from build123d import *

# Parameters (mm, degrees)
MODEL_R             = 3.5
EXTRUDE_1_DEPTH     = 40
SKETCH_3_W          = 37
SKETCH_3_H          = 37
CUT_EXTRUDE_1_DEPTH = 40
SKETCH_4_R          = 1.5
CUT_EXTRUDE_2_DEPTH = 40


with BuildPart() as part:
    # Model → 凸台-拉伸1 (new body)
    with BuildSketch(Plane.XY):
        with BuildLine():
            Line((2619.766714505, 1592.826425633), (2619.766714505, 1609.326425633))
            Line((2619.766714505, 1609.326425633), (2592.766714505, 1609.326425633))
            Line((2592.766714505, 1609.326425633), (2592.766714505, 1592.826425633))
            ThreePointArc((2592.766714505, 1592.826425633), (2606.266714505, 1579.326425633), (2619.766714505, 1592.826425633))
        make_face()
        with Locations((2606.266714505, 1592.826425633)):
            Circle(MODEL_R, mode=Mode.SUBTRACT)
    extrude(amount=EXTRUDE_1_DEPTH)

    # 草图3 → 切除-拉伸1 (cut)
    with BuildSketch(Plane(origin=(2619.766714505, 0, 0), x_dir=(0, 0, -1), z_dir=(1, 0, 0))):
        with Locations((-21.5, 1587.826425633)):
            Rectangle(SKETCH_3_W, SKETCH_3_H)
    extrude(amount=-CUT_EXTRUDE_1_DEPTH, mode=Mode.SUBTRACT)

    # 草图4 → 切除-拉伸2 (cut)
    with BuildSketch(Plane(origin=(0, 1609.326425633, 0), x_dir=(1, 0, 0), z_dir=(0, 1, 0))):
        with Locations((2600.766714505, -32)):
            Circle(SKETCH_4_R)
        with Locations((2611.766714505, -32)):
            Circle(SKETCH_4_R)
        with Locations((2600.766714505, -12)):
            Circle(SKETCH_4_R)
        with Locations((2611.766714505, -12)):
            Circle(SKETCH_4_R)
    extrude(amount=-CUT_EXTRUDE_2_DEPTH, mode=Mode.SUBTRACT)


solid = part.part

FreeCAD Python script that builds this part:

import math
import FreeCAD as App
import Part
import Sketcher

V = App.Vector

doc = App.newDocument("Part")
body = doc.addObject("PartDesign::Body", "Body")

# Sketch on XY plane
sketch1 = body.newObject("Sketcher::SketchObject", "Sketch")
sketch1.AttachmentSupport = (doc.getObject("XY_Plane"), [""])
sketch1.MapMode = "FlatFace"
sketch1.addGeometry([
    Part.LineSegment(V(2619.8, 1592.8, 0), V(2619.8, 1609.3, 0)),  # 0
    Part.LineSegment(V(2619.8, 1609.3, 0), V(2592.8, 1609.3, 0)),  # 1
    Part.LineSegment(V(2592.8, 1609.3, 0), V(2592.8, 1592.8, 0)),  # 2
    Part.ArcOfCircle(Part.Circle(V(2606.3, 1592.8, 0), V(0, 0, 1), 13.5), math.radians(180), math.radians(360)),  # 3
    Part.Circle(V(2606.3, 1592.8, 0), V(0, 0, 1), 3.5),  # 4
], False)
sketch1.addConstraint([
    Sketcher.Constraint("Coincident", 0, 2, 1, 1),
    Sketcher.Constraint("Coincident", 1, 2, 2, 1),
    Sketcher.Constraint("Tangent", 2, 2, 3, 1),
    Sketcher.Constraint("Tangent", 3, 2, 0, 1),
    Sketcher.Constraint("Vertical", 0),
    Sketcher.Constraint("Horizontal", 1),
    Sketcher.Constraint("Vertical", 2),
    Sketcher.Constraint("Coincident", 4, 3, 3, 3),
    Sketcher.Constraint("Diameter", 4, 7.0),
    Sketcher.Constraint("Radius", 3, 13.5),
    Sketcher.Constraint("DistanceY", 0, 1, 0, 2, 16.5),
    Sketcher.Constraint("DistanceX", -1, 1, 3, 3, 2606.266715),
    Sketcher.Constraint("DistanceY", -1, 1, 3, 3, 1592.826426),
])
pad1 = body.newObject("PartDesign::Pad", "Pad")
pad1.Profile = sketch1
pad1.Length = 40

# Sketch on YZ plane
sketch2 = body.newObject("Sketcher::SketchObject", "Sketch001")
sketch2.AttachmentSupport = (doc.getObject("YZ_Plane"), [""])
sketch2.MapMode = "FlatFace"
sketch2.AttachmentOffset = App.Placement(V(0, 0, 2619.766715), App.Rotation())
sketch2.addGeometry([
    Part.LineSegment(V(1606, 40, 0), V(1569, 40, 0)),
    Part.LineSegment(V(1569, 40, 0), V(1569, 3, 0)),
    Part.LineSegment(V(1569, 3, 0), V(1606, 3, 0)),
    Part.LineSegment(V(1606, 3, 0), V(1606, 40, 0)),
], False)
sketch2.addConstraint([
    Sketcher.Constraint("Coincident", 0, 2, 1, 1),
    Sketcher.Constraint("Coincident", 1, 2, 2, 1),
    Sketcher.Constraint("Coincident", 2, 2, 3, 1),
    Sketcher.Constraint("Coincident", 3, 2, 0, 1),
    Sketcher.Constraint("Horizontal", 0),
    Sketcher.Constraint("Vertical", 1),
    Sketcher.Constraint("Horizontal", 2),
    Sketcher.Constraint("Vertical", 3),
    Sketcher.Constraint("Equal", 2, 1),
    Sketcher.Constraint("DistanceX", 0, 2, 0, 1, 37.0),
    Sketcher.Constraint("DistanceY", -1, 1, 0, 2, 40.0),
    Sketcher.Constraint("DistanceX", -1, 1, 0, 2, 1569.326426),
])
pocket1 = body.newObject("PartDesign::Pocket", "Pocket")
pocket1.Profile = sketch2
pocket1.Length = 40

# Sketch on XZ plane
sketch3 = body.newObject("Sketcher::SketchObject", "Sketch002")
sketch3.AttachmentSupport = (doc.getObject("XZ_Plane"), [""])
sketch3.MapMode = "FlatFace"
sketch3.AttachmentOffset = App.Placement(V(0, 0, -1609.326426), App.Rotation())
sketch3.addGeometry([
    Part.Circle(V(2600.8, 32, 0), V(0, 0, 1), 1.5),
    Part.Circle(V(2611.8, 32, 0), V(0, 0, 1), 1.5),
    Part.Circle(V(2600.8, 12, 0), V(0, 0, 1), 1.5),
    Part.Circle(V(2611.8, 12, 0), V(0, 0, 1), 1.5),
], False)
sketch3.addConstraint([
    Sketcher.Constraint("Equal", 0, 1),
    Sketcher.Constraint("Equal", 1, 2),
    Sketcher.Constraint("Equal", 2, 3),
    Sketcher.Constraint("Horizontal", 0, 3, 1, 3),
    Sketcher.Constraint("Horizontal", 2, 3, 3, 3),
    Sketcher.Constraint("Vertical", 0, 3, 2, 3),
    Sketcher.Constraint("Vertical", 1, 3, 3, 3),
    Sketcher.Constraint("Diameter", 0, 3.0),
    Sketcher.Constraint("DistanceY", -1, 1, 0, 3, 32.0),
    Sketcher.Constraint("DistanceY", -1, 1, 2, 3, 12.0),
    Sketcher.Constraint("DistanceX", 0, 3, 1, 3, 11.0),
    Sketcher.Constraint("DistanceX", -1, 1, 0, 3, 2600.766715),
])
pocket2 = body.newObject("PartDesign::Pocket", "Pocket001")
pocket2.Profile = sketch3
pocket2.Length = 40
pocket2.Reversed = True

doc.recompute()
